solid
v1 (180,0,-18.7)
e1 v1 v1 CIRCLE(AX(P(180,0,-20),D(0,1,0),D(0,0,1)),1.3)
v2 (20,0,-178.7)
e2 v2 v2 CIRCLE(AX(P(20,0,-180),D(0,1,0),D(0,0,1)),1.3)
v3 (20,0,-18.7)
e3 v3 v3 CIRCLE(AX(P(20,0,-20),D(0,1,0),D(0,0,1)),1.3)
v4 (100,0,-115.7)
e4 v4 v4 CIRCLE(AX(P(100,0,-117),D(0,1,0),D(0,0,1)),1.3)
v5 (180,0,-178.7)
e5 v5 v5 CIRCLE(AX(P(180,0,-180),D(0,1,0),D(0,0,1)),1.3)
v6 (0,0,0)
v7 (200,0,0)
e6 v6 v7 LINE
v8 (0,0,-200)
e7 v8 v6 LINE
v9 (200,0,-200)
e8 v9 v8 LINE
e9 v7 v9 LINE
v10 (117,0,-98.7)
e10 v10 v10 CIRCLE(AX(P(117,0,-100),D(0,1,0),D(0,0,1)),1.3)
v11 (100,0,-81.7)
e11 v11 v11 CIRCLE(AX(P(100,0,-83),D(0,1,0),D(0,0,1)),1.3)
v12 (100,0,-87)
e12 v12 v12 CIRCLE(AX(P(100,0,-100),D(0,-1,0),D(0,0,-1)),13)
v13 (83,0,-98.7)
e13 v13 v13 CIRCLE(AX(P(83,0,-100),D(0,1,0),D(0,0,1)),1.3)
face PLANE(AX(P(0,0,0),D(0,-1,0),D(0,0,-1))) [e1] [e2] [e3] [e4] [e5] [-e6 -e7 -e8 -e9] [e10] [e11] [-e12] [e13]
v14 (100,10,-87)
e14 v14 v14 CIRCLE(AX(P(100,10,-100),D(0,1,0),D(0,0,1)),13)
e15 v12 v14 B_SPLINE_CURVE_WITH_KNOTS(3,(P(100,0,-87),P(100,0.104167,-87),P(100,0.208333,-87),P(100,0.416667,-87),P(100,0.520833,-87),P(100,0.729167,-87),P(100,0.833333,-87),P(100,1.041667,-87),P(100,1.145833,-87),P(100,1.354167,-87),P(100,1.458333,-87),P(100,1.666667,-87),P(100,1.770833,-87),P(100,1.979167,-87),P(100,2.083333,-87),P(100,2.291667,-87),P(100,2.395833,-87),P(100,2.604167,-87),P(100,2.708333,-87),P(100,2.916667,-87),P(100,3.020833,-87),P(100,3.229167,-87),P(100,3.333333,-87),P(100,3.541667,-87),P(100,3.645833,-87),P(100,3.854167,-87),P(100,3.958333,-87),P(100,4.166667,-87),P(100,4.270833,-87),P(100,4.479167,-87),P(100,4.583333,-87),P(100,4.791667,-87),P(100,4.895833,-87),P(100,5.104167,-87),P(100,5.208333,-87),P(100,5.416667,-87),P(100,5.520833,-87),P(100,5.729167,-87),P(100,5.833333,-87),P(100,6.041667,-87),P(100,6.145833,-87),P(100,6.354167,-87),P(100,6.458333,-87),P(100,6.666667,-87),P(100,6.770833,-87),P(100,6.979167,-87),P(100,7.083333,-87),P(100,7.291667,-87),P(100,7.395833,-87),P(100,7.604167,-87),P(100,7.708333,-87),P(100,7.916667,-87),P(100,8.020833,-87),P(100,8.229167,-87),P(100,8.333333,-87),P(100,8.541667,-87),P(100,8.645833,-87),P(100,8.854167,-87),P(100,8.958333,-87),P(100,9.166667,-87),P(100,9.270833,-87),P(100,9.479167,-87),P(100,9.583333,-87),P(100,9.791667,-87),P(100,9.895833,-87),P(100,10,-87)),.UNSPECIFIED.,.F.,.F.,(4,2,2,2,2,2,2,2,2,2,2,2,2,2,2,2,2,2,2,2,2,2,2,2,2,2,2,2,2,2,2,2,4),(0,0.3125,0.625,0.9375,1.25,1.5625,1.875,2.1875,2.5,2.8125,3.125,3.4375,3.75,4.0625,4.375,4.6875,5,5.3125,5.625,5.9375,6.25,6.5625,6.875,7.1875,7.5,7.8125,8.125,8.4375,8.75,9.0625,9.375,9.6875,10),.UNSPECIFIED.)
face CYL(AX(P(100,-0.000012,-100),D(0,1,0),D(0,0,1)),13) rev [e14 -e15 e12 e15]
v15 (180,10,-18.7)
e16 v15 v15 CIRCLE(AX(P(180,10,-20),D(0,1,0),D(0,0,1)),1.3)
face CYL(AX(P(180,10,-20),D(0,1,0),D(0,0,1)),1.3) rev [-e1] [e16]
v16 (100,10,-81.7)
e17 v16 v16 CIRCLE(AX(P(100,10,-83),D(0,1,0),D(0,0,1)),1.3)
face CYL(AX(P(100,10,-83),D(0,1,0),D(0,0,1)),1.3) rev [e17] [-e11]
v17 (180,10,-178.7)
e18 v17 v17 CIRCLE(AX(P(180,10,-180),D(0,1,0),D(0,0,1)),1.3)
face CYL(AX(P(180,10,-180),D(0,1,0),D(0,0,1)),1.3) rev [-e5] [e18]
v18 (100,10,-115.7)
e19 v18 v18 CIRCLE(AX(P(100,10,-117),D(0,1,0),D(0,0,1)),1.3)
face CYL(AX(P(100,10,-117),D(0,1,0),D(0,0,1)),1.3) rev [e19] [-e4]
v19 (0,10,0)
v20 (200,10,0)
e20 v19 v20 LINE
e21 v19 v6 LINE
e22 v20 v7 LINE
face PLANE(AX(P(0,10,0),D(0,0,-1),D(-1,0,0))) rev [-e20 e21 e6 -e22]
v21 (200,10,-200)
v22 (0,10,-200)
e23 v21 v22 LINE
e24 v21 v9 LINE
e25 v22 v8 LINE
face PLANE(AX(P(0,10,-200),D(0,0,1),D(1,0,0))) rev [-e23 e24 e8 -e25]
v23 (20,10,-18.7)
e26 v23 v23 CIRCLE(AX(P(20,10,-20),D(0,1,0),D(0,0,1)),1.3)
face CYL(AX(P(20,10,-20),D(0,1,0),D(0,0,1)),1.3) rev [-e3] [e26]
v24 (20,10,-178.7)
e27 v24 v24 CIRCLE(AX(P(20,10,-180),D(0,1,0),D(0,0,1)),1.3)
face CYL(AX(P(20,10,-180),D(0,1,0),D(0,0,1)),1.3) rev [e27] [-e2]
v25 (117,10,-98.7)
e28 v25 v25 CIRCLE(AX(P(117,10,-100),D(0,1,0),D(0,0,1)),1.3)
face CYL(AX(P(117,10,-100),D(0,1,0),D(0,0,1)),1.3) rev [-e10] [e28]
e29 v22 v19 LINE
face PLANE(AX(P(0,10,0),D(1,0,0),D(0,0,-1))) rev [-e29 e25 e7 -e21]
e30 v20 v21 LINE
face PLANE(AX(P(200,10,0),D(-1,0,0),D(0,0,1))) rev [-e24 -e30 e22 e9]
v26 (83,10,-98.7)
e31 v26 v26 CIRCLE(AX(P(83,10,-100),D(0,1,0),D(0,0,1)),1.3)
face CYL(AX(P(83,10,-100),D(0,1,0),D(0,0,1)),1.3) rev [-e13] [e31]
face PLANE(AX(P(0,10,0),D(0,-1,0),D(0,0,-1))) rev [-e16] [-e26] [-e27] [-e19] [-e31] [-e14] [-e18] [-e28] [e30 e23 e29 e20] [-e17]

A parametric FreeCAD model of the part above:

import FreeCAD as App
import Part
import Sketcher

V = App.Vector

doc = App.newDocument("Part")
body = doc.addObject("PartDesign::Body", "Body")

# Sketch on XZ plane
sketch1 = doc.addObject("Sketcher::SketchObject", "Sketch")
body.addObject(sketch1)
sketch1.AttachmentSupport = (doc.XZ_Plane, [""])
sketch1.MapMode = "FlatFace"
sketch1.addGeometry(Part.LineSegment(V(0, -200, 0), V(0, 0, 0)), False)
sketch1.addGeometry(Part.LineSegment(V(0, 0, 0), V(200, 0, 0)), False)
sketch1.addGeometry(Part.LineSegment(V(200, 0, 0), V(200, -200, 0)), False)
sketch1.addGeometry(Part.LineSegment(V(200, -200, 0), V(0, -200, 0)), False)
sketch1.addConstraint(Sketcher.Constraint("Coincident", 0, 2, 1, 1))
sketch1.addConstraint(Sketcher.Constraint("Coincident", 1, 2, 2, 1))
sketch1.addConstraint(Sketcher.Constraint("Coincident", 2, 2, 3, 1))
sketch1.addConstraint(Sketcher.Constraint("Coincident", 3, 2, 0, 1))
sketch1.addConstraint(Sketcher.Constraint("Vertical", 0))
sketch1.addConstraint(Sketcher.Constraint("Horizontal", 1))
sketch1.addConstraint(Sketcher.Constraint("Vertical", 2))
sketch1.addConstraint(Sketcher.Constraint("Horizontal", 3))
sketch1.addConstraint(Sketcher.Constraint("Coincident", 0, 2, -1, 1))
sketch1.addConstraint(Sketcher.Constraint("Equal", 3, 0))
sketch1.addConstraint(Sketcher.Constraint("DistanceX", 1, 1, 1, 2, 200.0))
pad1 = doc.addObject("PartDesign::Pad", "Pad")
body.addObject(pad1)
pad1.Profile = sketch1
pad1.Length = 10
pad1.Reversed = True

# Sketch on XZ plane
sketch2 = doc.addObject("Sketcher::SketchObject", "Sketch001")
body.addObject(sketch2)
sketch2.AttachmentSupport = (doc.XZ_Plane, [""])
sketch2.MapMode = "FlatFace"
sketch2.addGeometry(Part.Circle(V(100, -100, 0), V(0, 0, 1), 13), False)
sketch2.addConstraint(Sketcher.Constraint("Diameter", 0, 26.0))
sketch2.addConstraint(Sketcher.Constraint("DistanceX", -1, 1, 0, 3, 100.0))
sketch2.addConstraint(Sketcher.Constraint("DistanceY", 0, 3, -1, 1, 100.0))
pocket1 = doc.addObject("PartDesign::Pocket", "Pocket")
body.addObject(pocket1)
pocket1.Profile = sketch2
pocket1.Type = "ThroughAll"
pocket1.Midplane = True

# Sketch on XZ plane
sketch3 = doc.addObject("Sketcher::SketchObject", "Sketch002")
body.addObject(sketch3)
sketch3.AttachmentSupport = (doc.XZ_Plane, [""])
sketch3.MapMode = "FlatFace"
sketch3.AttachmentOffset = App.Placement(V(0, 0, -10), App.Rotation())
sketch3.addGeometry(Part.Circle(V(20, -180, 0), V(0, 0, 1), 1.3), False)
sketch3.addGeometry(Part.Circle(V(180, -180, 0), V(0, 0, 1), 1.3), False)
sketch3.addGeometry(Part.Circle(V(180, -20, 0), V(0, 0, 1), 1.3), False)
sketch3.addGeometry(Part.Circle(V(20, -20, 0), V(0, 0, 1), 1.3), False)
sketch3.addGeometry(Part.Circle(V(100, -117, 0), V(0, 0, 1), 1.3), False)
sketch3.addGeometry(Part.Circle(V(117, -100, 0), V(0, 0, 1), 1.3), False)
sketch3.addGeometry(Part.Circle(V(100, -83, 0), V(0, 0, 1), 1.3), False)
sketch3.addGeometry(Part.Circle(V(83, -100, 0), V(0, 0, 1), 1.3), False)
sketch3.addConstraint(Sketcher.Constraint("Equal", 0, 1))
sketch3.addConstraint(Sketcher.Constraint("Equal", 1, 2))
sketch3.addConstraint(Sketcher.Constraint("Equal", 2, 3))
sketch3.addConstraint(Sketcher.Constraint("Equal", 3, 4))
sketch3.addConstraint(Sketcher.Constraint("Equal", 4, 5))
sketch3.addConstraint(Sketcher.Constraint("Equal", 5, 6))
sketch3.addConstraint(Sketcher.Constraint("Equal", 6, 7))
sketch3.addConstraint(Sketcher.Constraint("Horizontal", 0, 3, 1, 3))
sketch3.addConstraint(Sketcher.Constraint("Horizontal", 2, 3, 3, 3))
sketch3.addConstraint(Sketcher.Constraint("Horizontal", 5, 3, 7, 3))
sketch3.addConstraint(Sketcher.Constraint("Vertical", 1, 3, 2, 3))
sketch3.addConstraint(Sketcher.Constraint("Vertical", 0, 3, 3, 3))
sketch3.addConstraint(Sketcher.Constraint("Vertical", 4, 3, 6, 3))
sketch3.addConstraint(Sketcher.Constraint("Diameter", 0, 2.6))
sketch3.addConstraint(Sketcher.Constraint("DistanceX", -1, 1, 0, 3, 20.0))
sketch3.addConstraint(Sketcher.Constraint("DistanceY", 0, 3, -1, 1, 180.0))
sketch3.addConstraint(Sketcher.Constraint("DistanceX", -1, 1, 1, 3, 180.0))
sketch3.addConstraint(Sketcher.Constraint("DistanceY", 2, 3, -1, 1, 20.0))
sketch3.addConstraint(Sketcher.Constraint("DistanceX", -1, 1, 4, 3, 100.0))
sketch3.addConstraint(Sketcher.Constraint("DistanceY", 4, 3, -1, 1, 117.0))
sketch3.addConstraint(Sketcher.Constraint("DistanceX", -1, 1, 5, 3, 117.0))
sketch3.addConstraint(Sketcher.Constraint("DistanceY", 5, 3, -1, 1, 100.0))
sketch3.addConstraint(Sketcher.Constraint("DistanceY", 6, 3, -1, 1, 83.0))
sketch3.addConstraint(Sketcher.Constraint("DistanceX", -1, 1, 7, 3, 83.0))
doc.recompute()
hole = doc.addObject("PartDesign::Hole", "Hole")
body.addObject(hole)
hole.Profile = sketch3
hole.ThreadType = "None"
hole.Diameter = 2.6
hole.DepthType = "ThroughAll"
hole.Reversed = True

doc.recompute()
